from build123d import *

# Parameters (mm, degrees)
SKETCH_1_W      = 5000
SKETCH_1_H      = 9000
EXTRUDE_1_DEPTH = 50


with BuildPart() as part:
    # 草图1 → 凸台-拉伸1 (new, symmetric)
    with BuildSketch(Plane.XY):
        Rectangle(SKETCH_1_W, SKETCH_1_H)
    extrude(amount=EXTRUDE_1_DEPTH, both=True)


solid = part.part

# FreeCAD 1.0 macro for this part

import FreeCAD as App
import Part
import Sketcher

V = App.Vector


def add_polygon(sketch, points):
    """Adds a closed chain of lines whose ends are joined by coincident constraints."""
    first, n = sketch.GeometryCount, len(points)
    for a, b in zip(points, points[1:] + points[:1]):
        sketch.addGeometry(Part.LineSegment(App.Vector(*a, 0), App.Vector(*b, 0)), False)
    for i in range(n):
        sketch.addConstraint(Sketcher.Constraint("Coincident", first + i, 2, first + (i + 1) % n, 1))

doc = App.newDocument("Part")
body = doc.addObject("PartDesign::Body", "Body")

sketch1 = body.newObject("Sketcher::SketchObject", "Sketch")
sketch1.AttachmentSupport = (doc.getObject("XY_Plane"), [""])
sketch1.MapMode = "FlatFace"
add_polygon(sketch1, [(-2500, 4500), (-2500, -4500), (2500, -4500), (2500, 4500)])
sketch1.addConstraint([
    Sketcher.Constraint("Vertical", 0),
    Sketcher.Constraint("Horizontal", 1),
    Sketcher.Constraint("Vertical", 2),
    Sketcher.Constraint("Horizontal", 3),
    Sketcher.Constraint("Symmetric", 0, 2, 2, 2, -1, 1),
    Sketcher.Constraint("DistanceX", 1, 1, 1, 2, 5000.0),
    Sketcher.Constraint("DistanceY", 0, 2, 0, 1, 9000.0),
])
pad1 = body.newObject("PartDesign::Pad", "Pad")
pad1.Profile = sketch1
pad1.Length = 100
pad1.Midplane = True

doc.recompute()
